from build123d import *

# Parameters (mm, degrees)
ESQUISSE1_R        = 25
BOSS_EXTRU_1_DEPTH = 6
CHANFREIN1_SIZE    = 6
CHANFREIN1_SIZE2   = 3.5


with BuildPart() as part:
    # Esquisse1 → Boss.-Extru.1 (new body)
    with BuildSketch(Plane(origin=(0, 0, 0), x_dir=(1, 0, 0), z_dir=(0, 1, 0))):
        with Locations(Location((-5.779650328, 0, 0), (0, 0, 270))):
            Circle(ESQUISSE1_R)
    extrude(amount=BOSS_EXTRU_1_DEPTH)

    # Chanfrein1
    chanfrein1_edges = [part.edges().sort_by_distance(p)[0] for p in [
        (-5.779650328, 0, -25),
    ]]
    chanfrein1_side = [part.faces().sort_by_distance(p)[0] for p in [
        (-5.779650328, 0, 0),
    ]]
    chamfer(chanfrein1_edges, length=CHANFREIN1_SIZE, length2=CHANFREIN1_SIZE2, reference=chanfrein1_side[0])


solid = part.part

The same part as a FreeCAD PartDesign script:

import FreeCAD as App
import Part
import Sketcher
from FreeCAD import Vector
Q = App.Units.Quantity


def edges_at(feature, points):
    """Names of the edges that pass closest to the given points."""
    edges = feature.Shape.Edges
    near = lambda p: min(range(len(edges)), key=lambda i: edges[i].distToShape(Part.Vertex(*p))[0])
    return sorted({f"Edge{near(p) + 1}" for p in points})

doc = App.newDocument("Part")
params = doc.addObject("Spreadsheet::Sheet", "Params")
for row, (alias, value) in enumerate([
    ("sketch1_diameter", "50 mm"),
    ("pad1_length", "6 mm"),
    ("chamfer_size", "6 mm"),
    ("chamfer_size2", "3.5 mm"),
], start=1):
    params.set(f"A{row}", alias)
    params.set(f"B{row}", "=" + value)
    params.setAlias(f"B{row}", alias)

body = doc.addObject("PartDesign::Body", "Body")

# Sketch on XZ plane
sketch1 = body.newObject("Sketcher::SketchObject", "Sketch")
sketch1.AttachmentSupport = (doc.getObject("XZ_Plane"), [""])
sketch1.MapMode = "FlatFace"
sketch1.addGeometry(Part.Circle(Vector(-6, 0, 0), Vector(0, 0, 1), 25), False)
sketch1.addConstraint([
    Sketcher.Constraint("PointOnObject", 0, 3, -1),
    Sketcher.Constraint("Diameter", 0, Q("50 mm")),
    Sketcher.Constraint("DistanceX", 0, 3, -1, 1, Q("5.77965 mm")),
])
sketch1.setExpression("Constraints[1]", "Params.sketch1_diameter")
pad1 = body.newObject("PartDesign::Pad", "Pad")
pad1.Profile = sketch1
pad1.setExpression("Length", "Params.pad1_length")
pad1.Reversed = True
doc.recompute()

chamfer = body.newObject("PartDesign::Chamfer", "Chamfer")
chamfer.Base = (pad1, edges_at(pad1, [(-5.78, 0, -25)]))
chamfer.ChamferType = "Two distances"
chamfer.setExpression("Size", "Params.chamfer_size")
chamfer.setExpression("Size2", "Params.chamfer_size2")
chamfer.FlipDirection = True

doc.recompute()
